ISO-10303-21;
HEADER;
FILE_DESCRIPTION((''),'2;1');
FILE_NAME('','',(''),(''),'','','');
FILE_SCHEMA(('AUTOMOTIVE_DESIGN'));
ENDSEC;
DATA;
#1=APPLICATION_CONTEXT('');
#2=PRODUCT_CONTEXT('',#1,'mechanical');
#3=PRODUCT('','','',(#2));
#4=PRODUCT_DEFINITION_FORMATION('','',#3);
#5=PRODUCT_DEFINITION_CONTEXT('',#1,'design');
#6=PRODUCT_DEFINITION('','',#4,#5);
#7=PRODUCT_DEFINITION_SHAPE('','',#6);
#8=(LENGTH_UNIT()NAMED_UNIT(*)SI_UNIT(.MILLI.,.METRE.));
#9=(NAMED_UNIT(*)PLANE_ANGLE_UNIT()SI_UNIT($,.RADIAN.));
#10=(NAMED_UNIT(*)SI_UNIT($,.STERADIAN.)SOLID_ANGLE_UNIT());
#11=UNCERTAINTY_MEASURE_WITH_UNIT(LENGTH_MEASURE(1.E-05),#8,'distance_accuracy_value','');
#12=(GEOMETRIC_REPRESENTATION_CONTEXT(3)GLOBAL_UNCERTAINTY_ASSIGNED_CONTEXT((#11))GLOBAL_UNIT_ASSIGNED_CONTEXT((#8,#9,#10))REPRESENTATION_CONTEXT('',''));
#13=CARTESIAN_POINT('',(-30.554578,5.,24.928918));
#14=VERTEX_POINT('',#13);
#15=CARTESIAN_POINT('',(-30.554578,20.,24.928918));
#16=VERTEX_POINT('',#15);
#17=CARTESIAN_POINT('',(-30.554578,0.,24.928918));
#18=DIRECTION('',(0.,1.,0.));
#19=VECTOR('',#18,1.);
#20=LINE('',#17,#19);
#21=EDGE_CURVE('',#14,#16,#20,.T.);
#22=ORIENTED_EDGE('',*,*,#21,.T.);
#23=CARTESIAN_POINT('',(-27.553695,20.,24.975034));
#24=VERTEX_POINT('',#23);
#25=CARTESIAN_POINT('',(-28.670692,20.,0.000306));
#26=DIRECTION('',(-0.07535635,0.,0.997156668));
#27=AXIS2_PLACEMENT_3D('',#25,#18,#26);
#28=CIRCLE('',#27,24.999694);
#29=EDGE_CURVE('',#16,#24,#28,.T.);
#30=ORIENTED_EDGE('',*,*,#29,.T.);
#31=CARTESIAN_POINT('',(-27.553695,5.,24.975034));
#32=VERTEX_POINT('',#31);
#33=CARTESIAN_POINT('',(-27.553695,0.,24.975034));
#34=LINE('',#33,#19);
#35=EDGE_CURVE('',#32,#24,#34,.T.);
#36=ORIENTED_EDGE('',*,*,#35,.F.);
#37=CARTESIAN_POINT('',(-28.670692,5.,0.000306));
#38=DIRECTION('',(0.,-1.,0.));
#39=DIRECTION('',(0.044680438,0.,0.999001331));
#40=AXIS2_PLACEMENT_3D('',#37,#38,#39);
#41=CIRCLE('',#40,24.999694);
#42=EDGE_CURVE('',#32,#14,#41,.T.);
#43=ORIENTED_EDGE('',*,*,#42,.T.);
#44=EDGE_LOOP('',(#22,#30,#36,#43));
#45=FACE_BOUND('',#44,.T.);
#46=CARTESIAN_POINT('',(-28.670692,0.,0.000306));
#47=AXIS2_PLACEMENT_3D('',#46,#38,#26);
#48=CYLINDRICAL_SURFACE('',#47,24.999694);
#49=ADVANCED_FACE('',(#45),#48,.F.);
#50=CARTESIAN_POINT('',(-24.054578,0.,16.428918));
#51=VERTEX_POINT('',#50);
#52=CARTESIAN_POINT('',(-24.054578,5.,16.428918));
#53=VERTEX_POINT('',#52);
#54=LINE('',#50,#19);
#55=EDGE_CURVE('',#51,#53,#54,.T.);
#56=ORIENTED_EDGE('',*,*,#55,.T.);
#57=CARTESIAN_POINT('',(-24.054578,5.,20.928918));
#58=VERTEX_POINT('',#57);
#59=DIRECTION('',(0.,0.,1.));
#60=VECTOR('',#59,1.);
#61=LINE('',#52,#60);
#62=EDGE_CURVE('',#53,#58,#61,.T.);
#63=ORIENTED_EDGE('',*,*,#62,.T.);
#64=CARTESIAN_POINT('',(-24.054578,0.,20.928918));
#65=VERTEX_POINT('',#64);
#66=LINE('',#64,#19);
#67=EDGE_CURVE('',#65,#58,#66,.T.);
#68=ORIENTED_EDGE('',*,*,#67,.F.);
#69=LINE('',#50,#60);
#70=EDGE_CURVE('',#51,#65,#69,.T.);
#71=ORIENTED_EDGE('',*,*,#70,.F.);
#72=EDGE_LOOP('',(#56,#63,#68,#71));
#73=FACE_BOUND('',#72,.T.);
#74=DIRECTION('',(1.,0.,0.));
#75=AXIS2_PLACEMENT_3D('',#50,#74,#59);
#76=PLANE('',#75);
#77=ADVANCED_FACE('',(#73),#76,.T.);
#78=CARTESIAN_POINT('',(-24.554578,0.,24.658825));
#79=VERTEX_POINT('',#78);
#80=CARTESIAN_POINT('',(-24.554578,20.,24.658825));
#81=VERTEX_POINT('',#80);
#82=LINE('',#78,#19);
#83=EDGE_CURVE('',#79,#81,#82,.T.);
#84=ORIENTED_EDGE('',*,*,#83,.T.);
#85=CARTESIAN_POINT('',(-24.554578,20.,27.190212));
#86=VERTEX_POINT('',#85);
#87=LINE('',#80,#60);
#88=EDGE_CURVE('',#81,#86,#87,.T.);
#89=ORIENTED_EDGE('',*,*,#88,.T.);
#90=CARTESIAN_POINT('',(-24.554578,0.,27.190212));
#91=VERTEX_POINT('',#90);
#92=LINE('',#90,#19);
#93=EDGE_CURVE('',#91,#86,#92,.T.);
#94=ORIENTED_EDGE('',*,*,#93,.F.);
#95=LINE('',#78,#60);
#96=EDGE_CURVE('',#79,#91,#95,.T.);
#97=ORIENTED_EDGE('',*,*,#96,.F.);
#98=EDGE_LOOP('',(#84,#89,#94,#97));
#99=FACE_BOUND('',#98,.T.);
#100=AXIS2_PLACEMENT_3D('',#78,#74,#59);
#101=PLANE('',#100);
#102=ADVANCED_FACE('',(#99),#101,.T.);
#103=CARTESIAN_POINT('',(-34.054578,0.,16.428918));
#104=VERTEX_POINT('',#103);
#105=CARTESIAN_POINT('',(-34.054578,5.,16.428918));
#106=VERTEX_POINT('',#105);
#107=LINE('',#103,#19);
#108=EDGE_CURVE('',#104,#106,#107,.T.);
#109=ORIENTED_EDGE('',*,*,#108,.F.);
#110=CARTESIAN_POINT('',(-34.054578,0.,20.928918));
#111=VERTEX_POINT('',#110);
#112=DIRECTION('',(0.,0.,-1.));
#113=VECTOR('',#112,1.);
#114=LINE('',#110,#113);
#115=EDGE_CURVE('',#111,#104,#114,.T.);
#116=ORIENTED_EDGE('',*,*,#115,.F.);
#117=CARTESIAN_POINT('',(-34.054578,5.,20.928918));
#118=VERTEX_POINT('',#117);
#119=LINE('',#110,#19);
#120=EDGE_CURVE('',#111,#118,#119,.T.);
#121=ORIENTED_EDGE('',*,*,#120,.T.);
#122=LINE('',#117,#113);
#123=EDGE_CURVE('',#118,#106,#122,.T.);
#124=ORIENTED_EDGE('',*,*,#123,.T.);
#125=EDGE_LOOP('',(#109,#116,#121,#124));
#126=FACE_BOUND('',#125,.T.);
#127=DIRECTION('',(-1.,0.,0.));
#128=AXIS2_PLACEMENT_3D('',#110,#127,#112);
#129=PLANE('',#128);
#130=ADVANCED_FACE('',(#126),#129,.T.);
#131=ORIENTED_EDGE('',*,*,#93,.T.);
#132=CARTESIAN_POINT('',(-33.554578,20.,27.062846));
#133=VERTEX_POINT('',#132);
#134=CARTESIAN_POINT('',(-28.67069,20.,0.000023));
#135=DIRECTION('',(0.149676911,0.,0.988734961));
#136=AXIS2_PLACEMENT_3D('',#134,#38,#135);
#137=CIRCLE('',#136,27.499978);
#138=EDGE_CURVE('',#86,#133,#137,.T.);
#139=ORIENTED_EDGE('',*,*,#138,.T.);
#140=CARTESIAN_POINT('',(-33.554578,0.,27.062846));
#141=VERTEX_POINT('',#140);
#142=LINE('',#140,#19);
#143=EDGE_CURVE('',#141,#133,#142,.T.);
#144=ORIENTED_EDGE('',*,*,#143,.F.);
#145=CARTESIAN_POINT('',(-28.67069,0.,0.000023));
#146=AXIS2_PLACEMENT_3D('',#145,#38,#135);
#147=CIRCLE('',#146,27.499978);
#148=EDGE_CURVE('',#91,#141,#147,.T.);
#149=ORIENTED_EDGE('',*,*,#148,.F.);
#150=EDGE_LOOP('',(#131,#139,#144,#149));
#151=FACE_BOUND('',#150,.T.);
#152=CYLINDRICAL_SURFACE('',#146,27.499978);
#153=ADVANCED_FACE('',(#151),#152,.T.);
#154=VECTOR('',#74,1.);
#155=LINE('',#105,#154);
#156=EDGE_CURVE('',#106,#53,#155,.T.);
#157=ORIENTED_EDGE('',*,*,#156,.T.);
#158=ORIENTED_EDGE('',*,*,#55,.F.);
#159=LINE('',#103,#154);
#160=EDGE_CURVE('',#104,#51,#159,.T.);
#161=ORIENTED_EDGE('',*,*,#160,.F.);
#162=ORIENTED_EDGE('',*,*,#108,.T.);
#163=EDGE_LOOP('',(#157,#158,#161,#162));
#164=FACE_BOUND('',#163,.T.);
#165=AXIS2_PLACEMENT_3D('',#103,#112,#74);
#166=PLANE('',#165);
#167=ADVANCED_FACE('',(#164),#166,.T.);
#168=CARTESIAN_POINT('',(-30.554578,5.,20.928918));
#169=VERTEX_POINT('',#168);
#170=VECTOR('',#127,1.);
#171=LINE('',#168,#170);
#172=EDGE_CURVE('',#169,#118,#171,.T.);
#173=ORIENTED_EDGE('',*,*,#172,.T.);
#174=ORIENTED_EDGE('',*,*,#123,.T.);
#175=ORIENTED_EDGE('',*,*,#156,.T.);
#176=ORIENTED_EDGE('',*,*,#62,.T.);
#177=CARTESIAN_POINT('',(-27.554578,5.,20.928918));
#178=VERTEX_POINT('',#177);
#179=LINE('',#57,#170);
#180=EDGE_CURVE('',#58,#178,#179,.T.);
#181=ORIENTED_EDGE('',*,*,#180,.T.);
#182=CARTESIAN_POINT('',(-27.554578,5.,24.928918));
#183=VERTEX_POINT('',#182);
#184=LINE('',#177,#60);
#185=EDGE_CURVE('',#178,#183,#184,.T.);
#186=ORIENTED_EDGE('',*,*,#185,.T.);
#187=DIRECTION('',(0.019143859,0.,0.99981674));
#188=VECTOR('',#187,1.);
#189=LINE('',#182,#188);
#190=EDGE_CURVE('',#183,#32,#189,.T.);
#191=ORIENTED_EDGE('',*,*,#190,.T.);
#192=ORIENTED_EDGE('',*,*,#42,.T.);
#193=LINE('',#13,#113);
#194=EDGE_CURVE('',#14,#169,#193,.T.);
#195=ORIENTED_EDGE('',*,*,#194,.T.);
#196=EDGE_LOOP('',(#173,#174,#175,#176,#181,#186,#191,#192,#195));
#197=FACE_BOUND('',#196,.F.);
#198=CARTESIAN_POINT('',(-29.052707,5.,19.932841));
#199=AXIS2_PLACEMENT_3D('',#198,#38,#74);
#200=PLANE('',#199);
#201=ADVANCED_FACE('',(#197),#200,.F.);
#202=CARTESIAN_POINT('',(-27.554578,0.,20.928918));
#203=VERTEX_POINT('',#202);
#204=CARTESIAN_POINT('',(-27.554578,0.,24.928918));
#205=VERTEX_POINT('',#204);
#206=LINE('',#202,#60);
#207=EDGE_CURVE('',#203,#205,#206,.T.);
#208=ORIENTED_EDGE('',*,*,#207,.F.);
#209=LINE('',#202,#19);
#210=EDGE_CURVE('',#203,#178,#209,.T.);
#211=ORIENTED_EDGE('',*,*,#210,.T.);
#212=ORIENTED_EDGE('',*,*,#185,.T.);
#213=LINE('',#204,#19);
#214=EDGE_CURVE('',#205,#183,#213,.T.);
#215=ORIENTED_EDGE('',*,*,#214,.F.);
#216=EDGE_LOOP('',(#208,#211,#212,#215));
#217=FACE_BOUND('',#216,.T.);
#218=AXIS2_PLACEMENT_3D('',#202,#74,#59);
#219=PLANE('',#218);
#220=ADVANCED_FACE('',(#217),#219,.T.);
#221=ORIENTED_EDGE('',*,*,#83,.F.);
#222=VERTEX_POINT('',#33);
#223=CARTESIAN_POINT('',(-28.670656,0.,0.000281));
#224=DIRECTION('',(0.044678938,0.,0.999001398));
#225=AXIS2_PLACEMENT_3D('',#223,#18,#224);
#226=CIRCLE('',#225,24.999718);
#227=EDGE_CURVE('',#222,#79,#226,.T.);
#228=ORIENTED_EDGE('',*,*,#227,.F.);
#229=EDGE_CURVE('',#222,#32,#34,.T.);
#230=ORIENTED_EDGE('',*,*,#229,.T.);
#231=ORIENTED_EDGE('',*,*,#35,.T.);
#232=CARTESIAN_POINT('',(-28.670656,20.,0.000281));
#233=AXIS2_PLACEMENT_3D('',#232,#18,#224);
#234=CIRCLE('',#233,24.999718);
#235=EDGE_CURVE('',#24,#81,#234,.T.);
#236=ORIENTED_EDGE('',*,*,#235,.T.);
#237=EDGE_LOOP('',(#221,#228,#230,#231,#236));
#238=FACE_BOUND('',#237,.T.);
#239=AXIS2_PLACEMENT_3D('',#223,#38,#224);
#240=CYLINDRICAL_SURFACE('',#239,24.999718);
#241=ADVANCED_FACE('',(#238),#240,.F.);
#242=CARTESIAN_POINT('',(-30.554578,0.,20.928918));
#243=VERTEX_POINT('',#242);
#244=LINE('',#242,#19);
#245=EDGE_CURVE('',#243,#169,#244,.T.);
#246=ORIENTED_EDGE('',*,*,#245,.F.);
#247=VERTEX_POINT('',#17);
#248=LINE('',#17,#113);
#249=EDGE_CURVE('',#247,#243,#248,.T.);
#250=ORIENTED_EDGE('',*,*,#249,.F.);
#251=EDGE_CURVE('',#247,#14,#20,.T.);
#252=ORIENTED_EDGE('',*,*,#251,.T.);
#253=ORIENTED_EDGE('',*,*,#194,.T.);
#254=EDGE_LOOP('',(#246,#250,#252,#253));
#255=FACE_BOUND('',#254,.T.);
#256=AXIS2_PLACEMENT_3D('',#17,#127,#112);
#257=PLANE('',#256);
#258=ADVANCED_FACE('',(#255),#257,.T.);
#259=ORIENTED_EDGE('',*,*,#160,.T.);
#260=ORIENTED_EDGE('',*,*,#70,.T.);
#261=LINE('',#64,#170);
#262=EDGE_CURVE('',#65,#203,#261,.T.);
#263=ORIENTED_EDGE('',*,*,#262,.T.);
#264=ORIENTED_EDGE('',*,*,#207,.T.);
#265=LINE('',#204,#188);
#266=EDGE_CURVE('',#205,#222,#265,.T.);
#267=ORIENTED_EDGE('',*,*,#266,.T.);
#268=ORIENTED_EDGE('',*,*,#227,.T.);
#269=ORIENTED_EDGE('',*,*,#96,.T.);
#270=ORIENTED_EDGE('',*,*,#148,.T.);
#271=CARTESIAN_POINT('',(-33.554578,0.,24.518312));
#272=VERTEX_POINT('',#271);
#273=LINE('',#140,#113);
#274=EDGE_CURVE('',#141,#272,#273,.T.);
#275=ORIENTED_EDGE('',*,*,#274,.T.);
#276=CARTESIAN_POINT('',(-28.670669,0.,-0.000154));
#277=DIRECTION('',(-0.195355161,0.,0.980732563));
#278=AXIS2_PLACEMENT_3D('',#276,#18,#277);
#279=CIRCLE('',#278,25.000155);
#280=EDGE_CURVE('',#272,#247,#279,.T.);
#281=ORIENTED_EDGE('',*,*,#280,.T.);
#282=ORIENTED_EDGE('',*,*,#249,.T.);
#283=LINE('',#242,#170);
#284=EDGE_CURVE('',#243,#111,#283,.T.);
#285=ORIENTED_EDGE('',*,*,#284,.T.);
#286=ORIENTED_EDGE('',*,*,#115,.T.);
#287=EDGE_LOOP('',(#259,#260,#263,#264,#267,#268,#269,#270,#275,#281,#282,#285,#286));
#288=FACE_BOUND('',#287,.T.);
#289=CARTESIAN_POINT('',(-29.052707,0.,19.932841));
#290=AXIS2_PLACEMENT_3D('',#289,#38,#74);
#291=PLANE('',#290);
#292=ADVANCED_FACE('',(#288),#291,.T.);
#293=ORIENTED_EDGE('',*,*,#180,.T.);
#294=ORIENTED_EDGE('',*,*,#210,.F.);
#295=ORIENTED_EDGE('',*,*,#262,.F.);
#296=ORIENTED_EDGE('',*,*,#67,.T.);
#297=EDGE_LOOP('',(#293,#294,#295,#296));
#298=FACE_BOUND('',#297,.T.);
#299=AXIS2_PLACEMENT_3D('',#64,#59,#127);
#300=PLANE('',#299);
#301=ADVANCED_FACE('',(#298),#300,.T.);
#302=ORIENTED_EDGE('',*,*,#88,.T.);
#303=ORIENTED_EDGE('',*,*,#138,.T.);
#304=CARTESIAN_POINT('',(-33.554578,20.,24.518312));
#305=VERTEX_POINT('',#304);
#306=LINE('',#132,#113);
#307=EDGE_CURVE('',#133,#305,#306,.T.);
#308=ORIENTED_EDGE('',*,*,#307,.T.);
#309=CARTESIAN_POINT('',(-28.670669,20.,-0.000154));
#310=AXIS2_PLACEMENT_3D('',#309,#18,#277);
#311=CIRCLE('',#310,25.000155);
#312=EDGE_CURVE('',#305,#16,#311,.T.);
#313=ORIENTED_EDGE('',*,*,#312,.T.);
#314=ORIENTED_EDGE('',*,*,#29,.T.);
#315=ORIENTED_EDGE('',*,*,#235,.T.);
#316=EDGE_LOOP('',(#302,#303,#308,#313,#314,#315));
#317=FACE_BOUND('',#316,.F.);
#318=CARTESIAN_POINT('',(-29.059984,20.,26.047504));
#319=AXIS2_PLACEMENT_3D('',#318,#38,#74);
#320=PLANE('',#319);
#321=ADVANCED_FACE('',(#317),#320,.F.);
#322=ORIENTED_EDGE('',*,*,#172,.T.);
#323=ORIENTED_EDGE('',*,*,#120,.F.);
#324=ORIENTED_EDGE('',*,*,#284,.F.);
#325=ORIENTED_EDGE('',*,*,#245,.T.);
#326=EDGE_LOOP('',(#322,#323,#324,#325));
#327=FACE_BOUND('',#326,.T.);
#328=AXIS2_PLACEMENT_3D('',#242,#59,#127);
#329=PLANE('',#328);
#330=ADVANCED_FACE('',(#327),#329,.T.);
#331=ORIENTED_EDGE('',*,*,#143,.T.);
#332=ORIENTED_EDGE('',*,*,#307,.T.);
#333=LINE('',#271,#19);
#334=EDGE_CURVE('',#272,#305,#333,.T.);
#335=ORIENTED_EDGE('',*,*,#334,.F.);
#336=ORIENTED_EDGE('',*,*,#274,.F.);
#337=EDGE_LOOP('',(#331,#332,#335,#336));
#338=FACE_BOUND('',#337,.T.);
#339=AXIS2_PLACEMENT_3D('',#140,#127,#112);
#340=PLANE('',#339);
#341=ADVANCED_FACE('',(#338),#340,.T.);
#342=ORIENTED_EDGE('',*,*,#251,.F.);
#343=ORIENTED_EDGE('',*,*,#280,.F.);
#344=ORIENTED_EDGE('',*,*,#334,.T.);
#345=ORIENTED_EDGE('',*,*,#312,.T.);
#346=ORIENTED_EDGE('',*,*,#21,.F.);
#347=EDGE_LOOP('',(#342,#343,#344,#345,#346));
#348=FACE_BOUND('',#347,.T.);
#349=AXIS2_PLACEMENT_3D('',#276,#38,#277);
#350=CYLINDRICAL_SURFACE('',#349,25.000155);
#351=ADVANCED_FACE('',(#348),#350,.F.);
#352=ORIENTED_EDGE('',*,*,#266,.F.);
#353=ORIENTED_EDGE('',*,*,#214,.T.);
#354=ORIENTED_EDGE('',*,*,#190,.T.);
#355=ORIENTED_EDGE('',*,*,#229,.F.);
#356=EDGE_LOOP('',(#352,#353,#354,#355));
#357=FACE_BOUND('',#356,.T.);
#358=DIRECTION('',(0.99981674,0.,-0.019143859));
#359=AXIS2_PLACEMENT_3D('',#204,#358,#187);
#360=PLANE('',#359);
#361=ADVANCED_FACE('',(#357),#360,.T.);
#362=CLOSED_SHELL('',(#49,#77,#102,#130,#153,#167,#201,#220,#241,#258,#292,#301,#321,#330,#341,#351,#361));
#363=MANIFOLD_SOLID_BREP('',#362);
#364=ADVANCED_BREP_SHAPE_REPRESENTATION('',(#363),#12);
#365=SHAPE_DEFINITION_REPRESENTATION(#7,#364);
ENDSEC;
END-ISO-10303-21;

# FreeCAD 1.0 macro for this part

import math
import FreeCAD as App
import Part
import Sketcher

doc = App.newDocument("Part")
body = doc.addObject("PartDesign::Body", "Body")

# Sketch on XZ plane
sketch1 = body.newObject("Sketcher::SketchObject", "Sketch")
sketch1.AttachmentSupport = (doc.getObject("XZ_Plane"), [""])
sketch1.MapMode = "FlatFace"
sketch1.addGeometry([
    Part.ArcOfCircle(Part.Circle(App.Vector(-28.670669, -0.000154, 0), App.Vector(0, 0, 1), 25.000155), math.radians(94.321672), math.radians(101.265472)),  # 0
    Part.ArcOfCircle(Part.Circle(App.Vector(-28.670692, 0.000306, 0), App.Vector(0, 0, 1), 24.999694), math.radians(87.439147), math.radians(94.321698)),  # 1
    Part.ArcOfCircle(Part.Circle(App.Vector(-28.670656, 0.000281, 0), App.Vector(0, 0, 1), 24.999718), math.radians(80.523389), math.radians(87.439233)),  # 2
    Part.LineSegment(App.Vector(-24.554578, 24.658825, 0), App.Vector(-24.554578, 27.190212, 0)),  # 3
    Part.ArcOfCircle(Part.Circle(App.Vector(-28.67069, 0.000023, 0), App.Vector(0, 0, 1), 27.499978), math.radians(81.391796), math.radians(100.22977)),  # 4
    Part.LineSegment(App.Vector(-33.554578, 27.062846, 0), App.Vector(-33.554578, 24.518312, 0)),  # 5
], False)
sketch1.addConstraint([
    Sketcher.Constraint("Coincident", 0, 1, 1, 2),
    Sketcher.Constraint("Coincident", 1, 1, 2, 2),
    Sketcher.Constraint("Coincident", 2, 1, 3, 1),
    Sketcher.Constraint("Coincident", 3, 2, 4, 1),
    Sketcher.Constraint("Coincident", 4, 2, 5, 1),
    Sketcher.Constraint("Coincident", 5, 2, 0, 2),
    Sketcher.Constraint("Vertical", 3),
    Sketcher.Constraint("Vertical", 5),
    Sketcher.Constraint("DistanceX", 0, 1, 2, 1, 6.0),
    Sketcher.Constraint("DistanceX", 4, 2, 0, 1, 3.0),
    Sketcher.Constraint("Radius", 2, 24.999718),
    Sketcher.Constraint("Radius", 0, 25.000155),
    Sketcher.Constraint("Radius", 1, 24.999694),
    Sketcher.Constraint("Radius", 4, 27.499978),
    Sketcher.Constraint("DistanceY", 5, 2, 3, 2, 2.6719),
    Sketcher.Constraint("DistanceY", 3, 1, 3, 2, 2.531387),
    Sketcher.Constraint("DistanceY", 5, 2, 5, 1, 2.544534),
    Sketcher.Constraint("DistanceX", 0, 3, -1, 1, 28.670669),
    Sketcher.Constraint("DistanceY", -1, 1, 2, 3, 0.000281),
    Sketcher.Constraint("DistanceX", 4, 3, -1, 1, 28.67069),
    Sketcher.Constraint("DistanceY", -1, 1, 3, 2, 27.190212),
    Sketcher.Constraint("DistanceX", 2, 3, 1, 1, 1.116961),
])
pad1 = body.newObject("PartDesign::Pad", "Pad")
pad1.Profile = sketch1
pad1.Length = 20
pad1.Reversed = True

# Sketch on XZ plane
sketch2 = body.newObject("Sketcher::SketchObject", "Sketch001")
sketch2.AttachmentSupport = (doc.getObject("XZ_Plane"), [""])
sketch2.MapMode = "FlatFace"
sketch2.addGeometry([
    Part.LineSegment(App.Vector(-30.555, 24.929, 0), App.Vector(-30.555, 20.929, 0)),  # 0
    Part.LineSegment(App.Vector(-30.555, 20.929, 0), App.Vector(-34.055, 20.929, 0)),  # 1
    Part.LineSegment(App.Vector(-34.055, 20.929, 0), App.Vector(-34.055, 16.429, 0)),  # 2
    Part.LineSegment(App.Vector(-34.055, 16.429, 0), App.Vector(-24.055, 16.429, 0)),  # 3
    Part.LineSegment(App.Vector(-24.055, 16.429, 0), App.Vector(-24.055, 20.929, 0)),  # 4
    Part.LineSegment(App.Vector(-24.055, 20.929, 0), App.Vector(-27.555, 20.929, 0)),  # 5
    Part.LineSegment(App.Vector(-27.555, 20.929, 0), App.Vector(-27.555, 24.929, 0)),  # 6
    Part.LineSegment(App.Vector(-27.555, 24.929, 0), App.Vector(-27.554, 24.975, 0)),  # 7
    Part.ArcOfCircle(Part.Circle(App.Vector(-28.671, 0, 0), App.Vector(0, 0, 1), 25), math.radians(87.44), math.radians(94.32)),  # 8
], False)
sketch2.addConstraint([
    Sketcher.Constraint("Coincident", 0, 2, 1, 1),
    Sketcher.Constraint("Coincident", 1, 2, 2, 1),
    Sketcher.Constraint("Coincident", 2, 2, 3, 1),
    Sketcher.Constraint("Coincident", 3, 2, 4, 1),
    Sketcher.Constraint("Coincident", 4, 2, 5, 1),
    Sketcher.Constraint("Coincident", 5, 2, 6, 1),
    Sketcher.Constraint("Coincident", 6, 2, 7, 1),
    Sketcher.Constraint("Coincident", 7, 2, 8, 1),
    Sketcher.Constraint("Coincident", 8, 2, 0, 1),
    Sketcher.Constraint("Vertical", 0),
    Sketcher.Constraint("Horizontal", 1),
    Sketcher.Constraint("Vertical", 2),
    Sketcher.Constraint("Horizontal", 3),
    Sketcher.Constraint("Vertical", 4),
    Sketcher.Constraint("Horizontal", 5),
    Sketcher.Constraint("Vertical", 6),
    Sketcher.Constraint("Horizontal", 1, 2, 4, 2),
    Sketcher.Constraint("Horizontal", 6, 2, 8, 2),
    Sketcher.Constraint("Equal", 1, 5),
    Sketcher.Constraint("DistanceX", 3, 1, 3, 2, 10.0),
    Sketcher.Constraint("DistanceY", 0, 2, 0, 1, 4.0),
    Sketcher.Constraint("DistanceX", 1, 2, 1, 1, 3.5),
    Sketcher.Constraint("DistanceY", 2, 2, 2, 1, 4.5),
    Sketcher.Constraint("Radius", 8, 24.999694),
    Sketcher.Constraint("DistanceY", 8, 3, 0, 2, 20.928612),
    Sketcher.Constraint("Distance", 7, 0.046124),
    Sketcher.Constraint("DistanceX", 8, 3, -1, 1, 28.670692),
    Sketcher.Constraint("DistanceY", -1, 1, 8, 3, 0.000306),
])
pad2 = body.newObject("PartDesign::Pad", "Pad001")
pad2.Profile = sketch2
pad2.Length = 5
pad2.Reversed = True

doc.recompute()
